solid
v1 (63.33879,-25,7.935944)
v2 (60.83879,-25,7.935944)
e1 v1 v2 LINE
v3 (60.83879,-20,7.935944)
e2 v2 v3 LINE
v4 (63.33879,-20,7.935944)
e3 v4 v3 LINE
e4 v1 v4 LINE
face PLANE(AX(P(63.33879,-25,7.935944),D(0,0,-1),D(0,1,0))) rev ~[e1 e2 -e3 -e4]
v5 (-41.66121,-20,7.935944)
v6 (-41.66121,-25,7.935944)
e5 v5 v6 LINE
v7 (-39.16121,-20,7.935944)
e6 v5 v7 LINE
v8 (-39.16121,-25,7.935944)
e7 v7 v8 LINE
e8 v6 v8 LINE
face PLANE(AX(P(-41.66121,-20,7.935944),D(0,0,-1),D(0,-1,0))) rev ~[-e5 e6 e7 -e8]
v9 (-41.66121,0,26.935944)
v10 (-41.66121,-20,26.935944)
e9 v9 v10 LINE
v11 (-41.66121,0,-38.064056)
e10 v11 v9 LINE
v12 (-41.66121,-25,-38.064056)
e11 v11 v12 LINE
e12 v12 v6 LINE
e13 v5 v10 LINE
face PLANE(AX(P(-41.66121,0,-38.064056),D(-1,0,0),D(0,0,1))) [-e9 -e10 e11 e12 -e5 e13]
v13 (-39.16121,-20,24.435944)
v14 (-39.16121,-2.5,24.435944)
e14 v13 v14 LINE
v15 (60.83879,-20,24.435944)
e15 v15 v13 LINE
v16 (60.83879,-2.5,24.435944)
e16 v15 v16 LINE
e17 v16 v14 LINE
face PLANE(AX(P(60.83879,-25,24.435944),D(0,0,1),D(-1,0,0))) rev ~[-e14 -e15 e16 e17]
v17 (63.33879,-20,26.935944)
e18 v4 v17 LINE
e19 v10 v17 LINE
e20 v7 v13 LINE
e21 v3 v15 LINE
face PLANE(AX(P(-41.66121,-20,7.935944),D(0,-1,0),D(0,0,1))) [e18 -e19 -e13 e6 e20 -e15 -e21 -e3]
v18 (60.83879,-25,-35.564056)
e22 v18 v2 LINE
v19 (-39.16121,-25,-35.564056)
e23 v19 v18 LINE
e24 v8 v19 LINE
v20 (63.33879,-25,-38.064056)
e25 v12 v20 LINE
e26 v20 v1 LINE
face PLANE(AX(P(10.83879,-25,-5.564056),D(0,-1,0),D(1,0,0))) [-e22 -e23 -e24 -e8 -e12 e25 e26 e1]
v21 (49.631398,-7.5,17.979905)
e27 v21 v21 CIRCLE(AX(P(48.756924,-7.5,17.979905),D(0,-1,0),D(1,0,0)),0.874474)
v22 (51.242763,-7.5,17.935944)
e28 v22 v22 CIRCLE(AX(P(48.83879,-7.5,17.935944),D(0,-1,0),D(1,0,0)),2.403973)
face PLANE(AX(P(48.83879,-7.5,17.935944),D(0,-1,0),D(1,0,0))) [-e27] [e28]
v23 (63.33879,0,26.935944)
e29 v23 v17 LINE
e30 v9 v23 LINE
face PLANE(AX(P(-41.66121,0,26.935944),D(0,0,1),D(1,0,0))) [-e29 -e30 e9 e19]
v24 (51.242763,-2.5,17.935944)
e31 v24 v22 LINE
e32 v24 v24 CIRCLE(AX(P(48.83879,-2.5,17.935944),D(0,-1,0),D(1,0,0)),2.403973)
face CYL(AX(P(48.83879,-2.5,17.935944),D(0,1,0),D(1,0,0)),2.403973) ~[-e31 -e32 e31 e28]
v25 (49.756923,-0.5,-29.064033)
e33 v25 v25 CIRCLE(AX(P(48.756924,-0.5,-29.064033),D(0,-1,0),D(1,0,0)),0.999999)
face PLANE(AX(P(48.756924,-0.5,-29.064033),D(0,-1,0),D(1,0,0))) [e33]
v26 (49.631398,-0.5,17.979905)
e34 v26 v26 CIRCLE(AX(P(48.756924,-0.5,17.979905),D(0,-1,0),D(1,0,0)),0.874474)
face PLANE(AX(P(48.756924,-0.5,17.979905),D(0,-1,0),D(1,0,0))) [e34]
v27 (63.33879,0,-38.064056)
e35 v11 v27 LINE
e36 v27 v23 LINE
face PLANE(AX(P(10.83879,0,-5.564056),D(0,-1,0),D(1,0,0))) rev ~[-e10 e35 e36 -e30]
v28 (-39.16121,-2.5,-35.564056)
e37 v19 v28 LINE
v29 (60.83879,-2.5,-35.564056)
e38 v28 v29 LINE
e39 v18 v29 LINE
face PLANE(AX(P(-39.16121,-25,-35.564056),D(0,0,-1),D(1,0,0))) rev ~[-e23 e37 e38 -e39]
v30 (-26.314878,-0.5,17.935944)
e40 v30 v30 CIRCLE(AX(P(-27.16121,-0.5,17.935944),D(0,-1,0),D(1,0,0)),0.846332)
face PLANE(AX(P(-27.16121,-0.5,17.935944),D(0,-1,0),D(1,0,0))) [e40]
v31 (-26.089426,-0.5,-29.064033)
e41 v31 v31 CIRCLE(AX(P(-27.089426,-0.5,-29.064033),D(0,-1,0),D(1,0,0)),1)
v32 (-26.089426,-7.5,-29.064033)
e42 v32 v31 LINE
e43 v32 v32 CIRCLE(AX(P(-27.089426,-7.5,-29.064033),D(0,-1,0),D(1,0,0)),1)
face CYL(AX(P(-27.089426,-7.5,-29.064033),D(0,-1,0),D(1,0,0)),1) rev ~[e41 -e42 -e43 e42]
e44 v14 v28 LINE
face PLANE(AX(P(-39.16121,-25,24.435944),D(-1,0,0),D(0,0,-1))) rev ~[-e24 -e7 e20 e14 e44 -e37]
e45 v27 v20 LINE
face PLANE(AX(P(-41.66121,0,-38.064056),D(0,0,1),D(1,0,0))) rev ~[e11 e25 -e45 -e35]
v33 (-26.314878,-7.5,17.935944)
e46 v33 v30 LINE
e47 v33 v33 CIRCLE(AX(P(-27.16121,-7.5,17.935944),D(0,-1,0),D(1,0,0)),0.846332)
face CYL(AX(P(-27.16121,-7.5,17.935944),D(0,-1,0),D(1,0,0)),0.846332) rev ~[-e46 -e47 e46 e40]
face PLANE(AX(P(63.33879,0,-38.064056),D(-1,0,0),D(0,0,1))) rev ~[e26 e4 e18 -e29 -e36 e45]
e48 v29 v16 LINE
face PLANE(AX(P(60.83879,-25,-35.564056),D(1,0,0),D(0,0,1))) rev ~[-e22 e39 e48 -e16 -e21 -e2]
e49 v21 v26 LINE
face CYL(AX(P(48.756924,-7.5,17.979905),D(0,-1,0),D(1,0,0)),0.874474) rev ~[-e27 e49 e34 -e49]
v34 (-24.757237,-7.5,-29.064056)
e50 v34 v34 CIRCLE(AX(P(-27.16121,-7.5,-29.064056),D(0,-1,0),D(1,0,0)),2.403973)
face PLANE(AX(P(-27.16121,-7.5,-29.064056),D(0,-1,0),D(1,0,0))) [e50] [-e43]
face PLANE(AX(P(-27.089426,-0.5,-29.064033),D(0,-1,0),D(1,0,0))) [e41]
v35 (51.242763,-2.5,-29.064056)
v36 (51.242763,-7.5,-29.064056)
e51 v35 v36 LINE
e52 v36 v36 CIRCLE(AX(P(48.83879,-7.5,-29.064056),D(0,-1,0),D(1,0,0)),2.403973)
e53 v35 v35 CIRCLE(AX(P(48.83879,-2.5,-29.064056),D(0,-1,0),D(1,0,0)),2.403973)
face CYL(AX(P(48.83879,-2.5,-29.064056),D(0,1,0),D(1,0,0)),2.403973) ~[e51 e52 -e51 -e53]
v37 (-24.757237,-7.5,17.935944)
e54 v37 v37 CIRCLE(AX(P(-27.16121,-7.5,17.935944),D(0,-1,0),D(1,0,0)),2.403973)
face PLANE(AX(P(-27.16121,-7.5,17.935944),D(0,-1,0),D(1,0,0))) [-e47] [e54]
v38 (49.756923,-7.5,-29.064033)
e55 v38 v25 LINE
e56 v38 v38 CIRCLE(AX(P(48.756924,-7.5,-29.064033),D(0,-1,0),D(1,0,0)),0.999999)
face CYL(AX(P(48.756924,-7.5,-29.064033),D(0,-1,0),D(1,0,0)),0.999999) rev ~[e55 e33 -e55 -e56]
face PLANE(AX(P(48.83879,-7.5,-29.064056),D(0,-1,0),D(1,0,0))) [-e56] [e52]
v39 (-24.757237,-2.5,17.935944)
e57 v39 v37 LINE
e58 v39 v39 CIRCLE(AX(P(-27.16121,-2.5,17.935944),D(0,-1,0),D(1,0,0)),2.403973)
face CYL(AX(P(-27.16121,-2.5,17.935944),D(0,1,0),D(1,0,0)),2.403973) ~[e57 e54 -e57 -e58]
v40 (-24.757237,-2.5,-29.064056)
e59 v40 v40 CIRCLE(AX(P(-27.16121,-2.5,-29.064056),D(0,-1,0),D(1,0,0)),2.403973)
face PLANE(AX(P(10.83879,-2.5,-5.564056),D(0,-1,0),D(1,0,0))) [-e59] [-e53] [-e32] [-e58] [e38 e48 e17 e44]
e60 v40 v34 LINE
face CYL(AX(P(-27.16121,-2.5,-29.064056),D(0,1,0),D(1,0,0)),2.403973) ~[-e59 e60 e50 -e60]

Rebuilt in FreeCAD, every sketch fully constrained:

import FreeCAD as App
import Part
import Sketcher
from FreeCAD import Vector

doc = App.newDocument("Part")
body = doc.addObject("PartDesign::Body", "Body")

# Sketch on XZ plane
sketch1 = doc.addObject("Sketcher::SketchObject", "Sketch")
body.addObject(sketch1)
sketch1.AttachmentSupport = (doc.XZ_Plane, [""])
sketch1.MapMode = "FlatFace"
sketch1.addGeometry([
    Part.LineSegment(Vector(-42, 27, 0), Vector(-42, -38, 0)),
    Part.LineSegment(Vector(-42, -38, 0), Vector(63, -38, 0)),
    Part.LineSegment(Vector(63, -38, 0), Vector(63, 27, 0)),
    Part.LineSegment(Vector(63, 27, 0), Vector(-42, 27, 0)),
], False)
sketch1.addConstraint([
    Sketcher.Constraint("Coincident", 0, 2, 1, 1),
    Sketcher.Constraint("Coincident", 1, 2, 2, 1),
    Sketcher.Constraint("Coincident", 2, 2, 3, 1),
    Sketcher.Constraint("Coincident", 3, 2, 0, 1),
    Sketcher.Constraint("Vertical", 0),
    Sketcher.Constraint("Horizontal", 1),
    Sketcher.Constraint("Vertical", 2),
    Sketcher.Constraint("Horizontal", 3),
    Sketcher.Constraint("DistanceX", 1, 1, 1, 2, 105.0),
    Sketcher.Constraint("DistanceY", 0, 2, 0, 1, 65.0),
    Sketcher.Constraint("DistanceX", 0, 2, -1, 1, 41.66121),
    Sketcher.Constraint("DistanceY", 0, 2, -1, 1, 38.064056),
])
pad1 = doc.addObject("PartDesign::Pad", "Pad")
body.addObject(pad1)
pad1.Profile = sketch1
pad1.Length = 25

# Sketch on XZ plane
sketch2 = doc.addObject("Sketcher::SketchObject", "Sketch001")
body.addObject(sketch2)
sketch2.AttachmentSupport = (doc.XZ_Plane, [""])
sketch2.MapMode = "FlatFace"
sketch2.AttachmentOffset = App.Placement(Vector(0, 0, 25), App.Rotation())
sketch2.addGeometry([
    Part.LineSegment(Vector(-39, 24, 0), Vector(-39, -36, 0)),
    Part.LineSegment(Vector(-39, -36, 0), Vector(61, -36, 0)),
    Part.LineSegment(Vector(61, -36, 0), Vector(61, 24, 0)),
    Part.LineSegment(Vector(61, 24, 0), Vector(-39, 24, 0)),
], False)
sketch2.addConstraint([
    Sketcher.Constraint("Coincident", 0, 2, 1, 1),
    Sketcher.Constraint("Coincident", 1, 2, 2, 1),
    Sketcher.Constraint("Coincident", 2, 2, 3, 1),
    Sketcher.Constraint("Coincident", 3, 2, 0, 1),
    Sketcher.Constraint("Vertical", 0),
    Sketcher.Constraint("Horizontal", 1),
    Sketcher.Constraint("Vertical", 2),
    Sketcher.Constraint("Horizontal", 3),
    Sketcher.Constraint("DistanceX", 1, 1, 1, 2, 100.0),
    Sketcher.Constraint("DistanceY", 0, 2, 0, 1, 60.0),
    Sketcher.Constraint("DistanceX", 0, 2, -1, 1, 39.16121),
    Sketcher.Constraint("DistanceY", 0, 2, -1, 1, 35.564056),
])
pocket1 = doc.addObject("PartDesign::Pocket", "Pocket")
body.addObject(pocket1)
pocket1.Profile = sketch2
pocket1.Length = 22.5

# Sketch on YZ plane
sketch3 = doc.addObject("Sketcher::SketchObject", "Sketch002")
body.addObject(sketch3)
sketch3.AttachmentSupport = (doc.YZ_Plane, [""])
sketch3.MapMode = "FlatFace"
sketch3.AttachmentOffset = App.Placement(Vector(0, 0, -41.66121), App.Rotation())
sketch3.addGeometry([
    Part.LineSegment(Vector(-20, 27, 0), Vector(-20, 8, 0)),
    Part.LineSegment(Vector(-20, 8, 0), Vector(-25, 8, 0)),
    Part.LineSegment(Vector(-25, 8, 0), Vector(-25, 27, 0)),
    Part.LineSegment(Vector(-25, 27, 0), Vector(-20, 27, 0)),
], False)
sketch3.addConstraint([
    Sketcher.Constraint("Coincident", 0, 2, 1, 1),
    Sketcher.Constraint("Coincident", 1, 2, 2, 1),
    Sketcher.Constraint("Coincident", 2, 2, 3, 1),
    Sketcher.Constraint("Coincident", 3, 2, 0, 1),
    Sketcher.Constraint("Vertical", 0),
    Sketcher.Constraint("Horizontal", 1),
    Sketcher.Constraint("Vertical", 2),
    Sketcher.Constraint("Horizontal", 3),
    Sketcher.Constraint("DistanceX", 1, 2, 1, 1, 5.0),
    Sketcher.Constraint("DistanceY", 0, 2, 0, 1, 19.0),
    Sketcher.Constraint("DistanceX", 0, 2, -1, 1, 20.0),
    Sketcher.Constraint("DistanceY", -1, 1, 0, 2, 7.935944),
])
pocket2 = doc.addObject("PartDesign::Pocket", "Pocket001")
body.addObject(pocket2)
pocket2.Profile = sketch3
pocket2.Length = 2.5
pocket2.Reversed = True

# Sketch on YZ plane
sketch4 = doc.addObject("Sketcher::SketchObject", "Sketch003")
body.addObject(sketch4)
sketch4.AttachmentSupport = (doc.YZ_Plane, [""])
sketch4.MapMode = "FlatFace"
sketch4.AttachmentOffset = App.Placement(Vector(0, 0, 63.33879), App.Rotation())
sketch4.addGeometry([
    Part.LineSegment(Vector(-25, 27, 0), Vector(-25, 8, 0)),
    Part.LineSegment(Vector(-25, 8, 0), Vector(-20, 8, 0)),
    Part.LineSegment(Vector(-20, 8, 0), Vector(-20, 27, 0)),
    Part.LineSegment(Vector(-20, 27, 0), Vector(-25, 27, 0)),
], False)
sketch4.addConstraint([
    Sketcher.Constraint("Coincident", 0, 2, 1, 1),
    Sketcher.Constraint("Coincident", 1, 2, 2, 1),
    Sketcher.Constraint("Coincident", 2, 2, 3, 1),
    Sketcher.Constraint("Coincident", 3, 2, 0, 1),
    Sketcher.Constraint("Vertical", 0),
    Sketcher.Constraint("Horizontal", 1),
    Sketcher.Constraint("Vertical", 2),
    Sketcher.Constraint("Horizontal", 3),
    Sketcher.Constraint("DistanceX", 1, 1, 1, 2, 5.0),
    Sketcher.Constraint("DistanceY", 0, 2, 0, 1, 19.0),
    Sketcher.Constraint("DistanceX", 0, 2, -1, 1, 25.0),
    Sketcher.Constraint("DistanceY", -1, 1, 0, 2, 7.935944),
])
pocket3 = doc.addObject("PartDesign::Pocket", "Pocket002")
body.addObject(pocket3)
pocket3.Profile = sketch4
pocket3.Length = 2.5

# Sketch on XY plane
sketch5 = doc.addObject("Sketcher::SketchObject", "Sketch004")
body.addObject(sketch5)
sketch5.AttachmentSupport = (doc.XY_Plane, [""])
sketch5.MapMode = "FlatFace"
sketch5.AttachmentOffset = App.Placement(Vector(0, 0, 26.935944), App.Rotation())
sketch5.addGeometry([
    Part.LineSegment(Vector(-39, -20, 0), Vector(-39, -25, 0)),
    Part.LineSegment(Vector(-39, -25, 0), Vector(61, -25, 0)),
    Part.LineSegment(Vector(61, -25, 0), Vector(61, -20, 0)),
    Part.LineSegment(Vector(61, -20, 0), Vector(-39, -20, 0)),
], False)
sketch5.addConstraint([
    Sketcher.Constraint("Coincident", 0, 2, 1, 1),
    Sketcher.Constraint("Coincident", 1, 2, 2, 1),
    Sketcher.Constraint("Coincident", 2, 2, 3, 1),
    Sketcher.Constraint("Coincident", 3, 2, 0, 1),
    Sketcher.Constraint("Vertical", 0),
    Sketcher.Constraint("Horizontal", 1),
    Sketcher.Constraint("Vertical", 2),
    Sketcher.Constraint("Horizontal", 3),
    Sketcher.Constraint("DistanceX", 1, 1, 1, 2, 100.0),
    Sketcher.Constraint("DistanceY", 0, 2, 0, 1, 5.0),
    Sketcher.Constraint("DistanceY", 0, 2, -1, 1, 25.0),
    Sketcher.Constraint("DistanceX", 0, 2, -1, 1, 39.16121),
])
pocket4 = doc.addObject("PartDesign::Pocket", "Pocket003")
body.addObject(pocket4)
pocket4.Profile = sketch5
pocket4.Length = 2.5

# Sketch on XZ plane
sketch6 = doc.addObject("Sketcher::SketchObject", "Sketch005")
body.addObject(sketch6)
sketch6.AttachmentSupport = (doc.XZ_Plane, [""])
sketch6.MapMode = "FlatFace"
sketch6.AttachmentOffset = App.Placement(Vector(0, 0, 2.5), App.Rotation())
sketch6.addGeometry([
    Part.Circle(Vector(48.8, 17.9, 0), Vector(0, 0, 1), 2.4),
    Part.Circle(Vector(-27.2, -29.1, 0), Vector(0, 0, 1), 2.4),
    Part.Circle(Vector(48.8, -29.1, 0), Vector(0, 0, 1), 2.4),
    Part.Circle(Vector(-27.2, 17.9, 0), Vector(0, 0, 1), 2.4),
], False)
sketch6.addConstraint([
    Sketcher.Constraint("Equal", 0, 1),
    Sketcher.Constraint("Equal", 1, 2),
    Sketcher.Constraint("Equal", 2, 3),
    Sketcher.Constraint("Horizontal", 1, 3, 2, 3),
    Sketcher.Constraint("Horizontal", 0, 3, 3, 3),
    Sketcher.Constraint("Vertical", 0, 3, 2, 3),
    Sketcher.Constraint("Vertical", 1, 3, 3, 3),
    Sketcher.Constraint("DistanceX", 1, 3, 0, 3, 76.0),
    Sketcher.Constraint("DistanceY", 1, 3, 0, 3, 47.0),
    Sketcher.Constraint("Diameter", 0, 4.807946),
    Sketcher.Constraint("DistanceX", -1, 1, 0, 3, 48.83879),
    Sketcher.Constraint("DistanceY", -1, 1, 0, 3, 17.935944),
])
pad2 = doc.addObject("PartDesign::Pad", "Pad001")
body.addObject(pad2)
pad2.Profile = sketch6
pad2.Length = 5

# Sketch on XZ plane
sketch7 = doc.addObject("Sketcher::SketchObject", "Sketch006")
body.addObject(sketch7)
sketch7.AttachmentSupport = (doc.XZ_Plane, [""])
sketch7.MapMode = "FlatFace"
sketch7.AttachmentOffset = App.Placement(Vector(0, 0, 7.5), App.Rotation())
sketch7.addGeometry([
    Part.Circle(Vector(48.8, 18, 0), Vector(0, 0, 1), 0.9),
    Part.Circle(Vector(48.8, -29.1, 0), Vector(0, 0, 1), 1),
    Part.Circle(Vector(-27.2, 17.9, 0), Vector(0, 0, 1), 0.8),
    Part.Circle(Vector(-27.1, -29.1, 0), Vector(0, 0, 1), 1),
], False)
sketch7.addConstraint([
    Sketcher.Constraint("Equal", 1, 3),
    Sketcher.Constraint("Horizontal", 1, 3, 3, 3),
    Sketcher.Constraint("Vertical", 0, 3, 1, 3),
    Sketcher.Constraint("Diameter", 3, 2.0),
    Sketcher.Constraint("Diameter", 0, 1.748948),
    Sketcher.Constraint("Diameter", 2, 1.692664),
    Sketcher.Constraint("DistanceX", 2, 3, -1, 1, 27.16121),
    Sketcher.Constraint("DistanceY", 2, 3, 0, 3, 0.043961),
    Sketcher.Constraint("DistanceX", 3, 3, 1, 3, 75.84635),
    Sketcher.Constraint("DistanceX", -1, 1, 0, 3, 48.756924),
    Sketcher.Constraint("DistanceY", -1, 1, 0, 3, 17.979905),
    Sketcher.Constraint("DistanceY", 1, 3, -1, 1, 29.064033),
])
pocket5 = doc.addObject("PartDesign::Pocket", "Pocket004")
body.addObject(pocket5)
pocket5.Profile = sketch7
pocket5.Length = 7

doc.recompute()
